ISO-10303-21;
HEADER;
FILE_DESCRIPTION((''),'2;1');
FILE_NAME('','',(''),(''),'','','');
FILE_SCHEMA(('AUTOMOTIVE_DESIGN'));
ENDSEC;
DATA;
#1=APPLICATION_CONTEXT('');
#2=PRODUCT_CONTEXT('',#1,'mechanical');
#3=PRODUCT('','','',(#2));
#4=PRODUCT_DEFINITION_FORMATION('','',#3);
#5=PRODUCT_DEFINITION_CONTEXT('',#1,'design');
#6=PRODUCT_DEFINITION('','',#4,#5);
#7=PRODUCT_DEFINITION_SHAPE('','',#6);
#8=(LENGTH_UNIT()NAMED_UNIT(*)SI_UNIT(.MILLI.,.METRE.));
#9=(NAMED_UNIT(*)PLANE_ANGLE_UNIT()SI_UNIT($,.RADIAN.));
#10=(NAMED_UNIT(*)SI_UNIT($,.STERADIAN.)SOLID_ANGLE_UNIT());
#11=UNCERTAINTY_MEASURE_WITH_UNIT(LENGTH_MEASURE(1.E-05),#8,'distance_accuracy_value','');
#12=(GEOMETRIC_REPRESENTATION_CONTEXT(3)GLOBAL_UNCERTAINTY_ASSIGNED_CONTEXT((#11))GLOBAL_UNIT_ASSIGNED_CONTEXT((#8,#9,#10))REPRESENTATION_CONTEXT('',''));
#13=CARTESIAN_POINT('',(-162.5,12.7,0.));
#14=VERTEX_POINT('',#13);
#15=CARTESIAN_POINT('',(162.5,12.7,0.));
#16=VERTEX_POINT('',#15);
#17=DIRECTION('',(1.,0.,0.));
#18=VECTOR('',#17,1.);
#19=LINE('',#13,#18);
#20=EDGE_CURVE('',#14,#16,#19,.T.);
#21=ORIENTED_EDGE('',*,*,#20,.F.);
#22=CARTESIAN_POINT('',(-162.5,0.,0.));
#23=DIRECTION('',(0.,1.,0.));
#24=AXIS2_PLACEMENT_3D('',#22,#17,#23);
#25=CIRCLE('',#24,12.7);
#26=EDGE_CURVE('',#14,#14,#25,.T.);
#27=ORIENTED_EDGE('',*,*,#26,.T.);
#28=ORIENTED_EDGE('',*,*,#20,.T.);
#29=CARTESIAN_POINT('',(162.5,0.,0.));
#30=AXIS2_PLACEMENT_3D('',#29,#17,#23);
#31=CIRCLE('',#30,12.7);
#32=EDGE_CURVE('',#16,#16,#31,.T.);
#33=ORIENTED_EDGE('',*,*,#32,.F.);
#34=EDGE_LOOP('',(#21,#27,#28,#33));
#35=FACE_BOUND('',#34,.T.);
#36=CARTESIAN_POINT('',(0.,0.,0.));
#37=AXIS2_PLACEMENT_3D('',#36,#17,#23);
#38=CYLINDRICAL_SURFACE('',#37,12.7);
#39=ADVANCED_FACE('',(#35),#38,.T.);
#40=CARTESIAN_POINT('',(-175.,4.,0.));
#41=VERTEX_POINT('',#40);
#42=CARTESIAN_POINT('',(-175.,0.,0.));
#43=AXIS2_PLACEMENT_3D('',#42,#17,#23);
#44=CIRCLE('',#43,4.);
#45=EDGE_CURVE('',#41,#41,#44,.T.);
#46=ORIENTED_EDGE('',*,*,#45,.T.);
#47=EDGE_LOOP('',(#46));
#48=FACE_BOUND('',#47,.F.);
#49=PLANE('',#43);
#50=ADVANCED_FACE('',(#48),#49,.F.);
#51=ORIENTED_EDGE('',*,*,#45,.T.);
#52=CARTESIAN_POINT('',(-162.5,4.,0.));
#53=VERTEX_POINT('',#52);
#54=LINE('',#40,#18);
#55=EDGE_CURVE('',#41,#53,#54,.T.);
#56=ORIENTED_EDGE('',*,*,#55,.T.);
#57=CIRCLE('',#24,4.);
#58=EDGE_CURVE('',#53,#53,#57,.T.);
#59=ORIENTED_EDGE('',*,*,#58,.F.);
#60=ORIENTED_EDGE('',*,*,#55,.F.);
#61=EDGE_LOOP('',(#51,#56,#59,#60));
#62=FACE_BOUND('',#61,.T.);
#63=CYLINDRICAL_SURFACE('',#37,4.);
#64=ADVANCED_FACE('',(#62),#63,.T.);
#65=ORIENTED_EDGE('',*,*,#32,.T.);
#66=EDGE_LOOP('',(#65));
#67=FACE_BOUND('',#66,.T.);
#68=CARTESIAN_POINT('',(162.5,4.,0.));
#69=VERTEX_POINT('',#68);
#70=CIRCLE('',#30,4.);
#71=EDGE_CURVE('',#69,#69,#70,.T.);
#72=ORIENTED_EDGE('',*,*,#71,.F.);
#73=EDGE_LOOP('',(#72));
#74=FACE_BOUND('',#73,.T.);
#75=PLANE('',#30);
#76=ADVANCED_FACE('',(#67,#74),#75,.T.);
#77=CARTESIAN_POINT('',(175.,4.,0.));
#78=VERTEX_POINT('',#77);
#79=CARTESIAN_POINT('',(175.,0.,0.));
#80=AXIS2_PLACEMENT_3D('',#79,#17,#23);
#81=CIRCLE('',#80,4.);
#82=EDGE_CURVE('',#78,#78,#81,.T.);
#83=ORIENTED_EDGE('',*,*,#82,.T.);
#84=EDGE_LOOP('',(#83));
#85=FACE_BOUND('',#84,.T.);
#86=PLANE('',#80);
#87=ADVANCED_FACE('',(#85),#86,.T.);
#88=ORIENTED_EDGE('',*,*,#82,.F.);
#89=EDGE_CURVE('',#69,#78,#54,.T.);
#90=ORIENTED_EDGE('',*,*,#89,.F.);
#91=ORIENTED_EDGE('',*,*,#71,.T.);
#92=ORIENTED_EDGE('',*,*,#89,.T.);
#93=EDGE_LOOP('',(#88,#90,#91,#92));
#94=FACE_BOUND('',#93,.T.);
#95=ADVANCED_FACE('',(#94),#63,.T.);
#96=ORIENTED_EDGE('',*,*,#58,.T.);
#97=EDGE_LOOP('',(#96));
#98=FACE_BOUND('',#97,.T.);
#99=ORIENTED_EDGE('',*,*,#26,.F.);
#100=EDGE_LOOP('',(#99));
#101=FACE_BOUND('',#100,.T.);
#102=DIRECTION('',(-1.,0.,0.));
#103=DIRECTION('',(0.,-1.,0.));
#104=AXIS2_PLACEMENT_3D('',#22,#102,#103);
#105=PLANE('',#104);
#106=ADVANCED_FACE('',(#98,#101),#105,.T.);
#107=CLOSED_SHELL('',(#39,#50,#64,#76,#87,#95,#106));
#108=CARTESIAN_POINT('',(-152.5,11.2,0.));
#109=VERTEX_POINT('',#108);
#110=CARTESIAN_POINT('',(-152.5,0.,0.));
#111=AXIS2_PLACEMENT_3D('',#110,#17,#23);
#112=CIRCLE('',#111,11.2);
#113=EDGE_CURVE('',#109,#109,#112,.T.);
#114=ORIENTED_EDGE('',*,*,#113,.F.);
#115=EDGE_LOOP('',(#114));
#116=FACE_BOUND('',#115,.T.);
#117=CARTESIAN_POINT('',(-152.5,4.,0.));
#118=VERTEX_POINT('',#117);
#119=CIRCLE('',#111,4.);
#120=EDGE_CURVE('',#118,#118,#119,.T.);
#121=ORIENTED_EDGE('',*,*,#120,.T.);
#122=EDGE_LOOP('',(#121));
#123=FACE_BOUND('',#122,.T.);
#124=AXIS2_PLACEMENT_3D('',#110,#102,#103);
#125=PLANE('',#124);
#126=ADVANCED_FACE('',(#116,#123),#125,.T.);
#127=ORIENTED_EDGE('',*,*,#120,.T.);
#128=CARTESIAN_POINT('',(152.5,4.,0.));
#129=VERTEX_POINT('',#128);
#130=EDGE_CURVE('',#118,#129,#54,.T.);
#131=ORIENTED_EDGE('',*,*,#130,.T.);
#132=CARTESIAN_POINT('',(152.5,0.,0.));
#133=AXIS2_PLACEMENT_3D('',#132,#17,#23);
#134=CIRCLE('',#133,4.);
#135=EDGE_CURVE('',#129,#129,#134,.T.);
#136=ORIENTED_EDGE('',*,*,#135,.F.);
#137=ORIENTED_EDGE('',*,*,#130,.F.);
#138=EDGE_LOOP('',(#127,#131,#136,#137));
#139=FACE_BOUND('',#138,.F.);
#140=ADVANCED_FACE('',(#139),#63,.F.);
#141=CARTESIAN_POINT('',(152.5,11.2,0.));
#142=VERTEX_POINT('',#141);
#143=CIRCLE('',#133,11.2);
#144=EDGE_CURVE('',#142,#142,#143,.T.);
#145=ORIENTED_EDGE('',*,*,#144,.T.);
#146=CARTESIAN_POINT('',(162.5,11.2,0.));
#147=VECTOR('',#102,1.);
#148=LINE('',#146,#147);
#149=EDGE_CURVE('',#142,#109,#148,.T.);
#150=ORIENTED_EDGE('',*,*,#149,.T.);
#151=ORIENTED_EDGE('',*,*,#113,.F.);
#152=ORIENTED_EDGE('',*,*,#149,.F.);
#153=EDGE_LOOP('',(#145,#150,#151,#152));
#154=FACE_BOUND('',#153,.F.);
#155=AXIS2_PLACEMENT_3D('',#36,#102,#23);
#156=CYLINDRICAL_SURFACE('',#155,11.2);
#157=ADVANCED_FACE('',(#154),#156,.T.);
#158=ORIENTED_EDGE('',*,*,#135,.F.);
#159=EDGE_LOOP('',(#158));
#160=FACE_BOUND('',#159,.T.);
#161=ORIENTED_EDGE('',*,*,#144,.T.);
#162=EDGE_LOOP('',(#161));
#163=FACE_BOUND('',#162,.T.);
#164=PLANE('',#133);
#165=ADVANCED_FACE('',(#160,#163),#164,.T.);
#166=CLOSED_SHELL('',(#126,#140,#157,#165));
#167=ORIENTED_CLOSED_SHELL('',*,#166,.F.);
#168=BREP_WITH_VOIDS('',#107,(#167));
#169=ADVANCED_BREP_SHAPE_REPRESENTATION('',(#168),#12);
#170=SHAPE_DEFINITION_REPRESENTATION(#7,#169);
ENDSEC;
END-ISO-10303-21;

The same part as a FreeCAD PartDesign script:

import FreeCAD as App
import Part
import Sketcher
from FreeCAD import Vector

doc = App.newDocument("Part")
body = doc.addObject("PartDesign::Body", "Body")

# Sketch on YZ plane
sketch1 = body.newObject("Sketcher::SketchObject", "Sketch")
sketch1.AttachmentSupport = (doc.getObject("YZ_Plane"), [""])
sketch1.MapMode = "FlatFace"
sketch1.addGeometry([
    Part.Circle(Vector(0, 0, 0), Vector(0, 0, 1), 13),
    Part.Circle(Vector(0, 0, 0), Vector(0, 0, 1), 11),
], False)
sketch1.addConstraint([
    Sketcher.Constraint("Coincident", 0, 3, -1, 1),
    Sketcher.Constraint("Coincident", 1, 3, -1, 1),
    Sketcher.Constraint("Diameter", 0, 25.4),
    Sketcher.Constraint("Diameter", 1, 22.4),
])
pad1 = body.newObject("PartDesign::Pad", "Pad")
pad1.Profile = sketch1
pad1.Length = 325
pad1.Midplane = True
body2 = doc.addObject("PartDesign::Body", "Body001")

# Sketch on YZ plane
sketch2 = body2.newObject("Sketcher::SketchObject", "Sketch001")
sketch2.AttachmentSupport = (doc.getObject("YZ_Plane001"), [""])
sketch2.MapMode = "FlatFace"
sketch2.addGeometry(Part.Circle(Vector(0, 0, 0), Vector(0, 0, 1), 4), False)
sketch2.addConstraint([
    Sketcher.Constraint("Coincident", 0, 3, -1, 1),
    Sketcher.Constraint("Diameter", 0, 8.0),
])
pad2 = body2.newObject("PartDesign::Pad", "Pad001")
pad2.Profile = sketch2
pad2.Length = 350
pad2.Midplane = True
body.AllowCompound = True
doc.recompute()

boolean = body.newObject("PartDesign::Boolean", "Boolean")
boolean.Type = "Fuse"
boolean.addObjects([body2])

# Sketch on YZ plane
sketch3 = body.newObject("Sketcher::SketchObject", "Sketch002")
sketch3.AttachmentSupport = (doc.getObject("YZ_Plane"), [""])
sketch3.MapMode = "FlatFace"
sketch3.AttachmentOffset = App.Placement(Vector(0, 0, 162.5), App.Rotation())
sketch3.addGeometry(Part.Circle(Vector(0, 0, 0), Vector(0, 0, 1), 11), False)
sketch3.addConstraint([
    Sketcher.Constraint("Coincident", 0, 3, -1, 1),
    Sketcher.Constraint("Diameter", 0, 22.4),
])
pad3 = body.newObject("PartDesign::Pad", "Pad002")
pad3.Profile = sketch3
pad3.Length = 10
pad3.Reversed = True

# Sketch on YZ plane
sketch4 = body.newObject("Sketcher::SketchObject", "Sketch003")
sketch4.AttachmentSupport = (doc.getObject("YZ_Plane"), [""])
sketch4.MapMode = "FlatFace"
sketch4.AttachmentOffset = App.Placement(Vector(0, 0, -162.5), App.Rotation())
sketch4.addGeometry(Part.Circle(Vector(0, 0, 0), Vector(0, 0, 1), 11), False)
sketch4.addConstraint([
    Sketcher.Constraint("Coincident", 0, 3, -1, 1),
    Sketcher.Constraint("Diameter", 0, 22.4),
])
pad4 = body.newObject("PartDesign::Pad", "Pad003")
pad4.Profile = sketch4
pad4.Length = 10

doc.recompute()
